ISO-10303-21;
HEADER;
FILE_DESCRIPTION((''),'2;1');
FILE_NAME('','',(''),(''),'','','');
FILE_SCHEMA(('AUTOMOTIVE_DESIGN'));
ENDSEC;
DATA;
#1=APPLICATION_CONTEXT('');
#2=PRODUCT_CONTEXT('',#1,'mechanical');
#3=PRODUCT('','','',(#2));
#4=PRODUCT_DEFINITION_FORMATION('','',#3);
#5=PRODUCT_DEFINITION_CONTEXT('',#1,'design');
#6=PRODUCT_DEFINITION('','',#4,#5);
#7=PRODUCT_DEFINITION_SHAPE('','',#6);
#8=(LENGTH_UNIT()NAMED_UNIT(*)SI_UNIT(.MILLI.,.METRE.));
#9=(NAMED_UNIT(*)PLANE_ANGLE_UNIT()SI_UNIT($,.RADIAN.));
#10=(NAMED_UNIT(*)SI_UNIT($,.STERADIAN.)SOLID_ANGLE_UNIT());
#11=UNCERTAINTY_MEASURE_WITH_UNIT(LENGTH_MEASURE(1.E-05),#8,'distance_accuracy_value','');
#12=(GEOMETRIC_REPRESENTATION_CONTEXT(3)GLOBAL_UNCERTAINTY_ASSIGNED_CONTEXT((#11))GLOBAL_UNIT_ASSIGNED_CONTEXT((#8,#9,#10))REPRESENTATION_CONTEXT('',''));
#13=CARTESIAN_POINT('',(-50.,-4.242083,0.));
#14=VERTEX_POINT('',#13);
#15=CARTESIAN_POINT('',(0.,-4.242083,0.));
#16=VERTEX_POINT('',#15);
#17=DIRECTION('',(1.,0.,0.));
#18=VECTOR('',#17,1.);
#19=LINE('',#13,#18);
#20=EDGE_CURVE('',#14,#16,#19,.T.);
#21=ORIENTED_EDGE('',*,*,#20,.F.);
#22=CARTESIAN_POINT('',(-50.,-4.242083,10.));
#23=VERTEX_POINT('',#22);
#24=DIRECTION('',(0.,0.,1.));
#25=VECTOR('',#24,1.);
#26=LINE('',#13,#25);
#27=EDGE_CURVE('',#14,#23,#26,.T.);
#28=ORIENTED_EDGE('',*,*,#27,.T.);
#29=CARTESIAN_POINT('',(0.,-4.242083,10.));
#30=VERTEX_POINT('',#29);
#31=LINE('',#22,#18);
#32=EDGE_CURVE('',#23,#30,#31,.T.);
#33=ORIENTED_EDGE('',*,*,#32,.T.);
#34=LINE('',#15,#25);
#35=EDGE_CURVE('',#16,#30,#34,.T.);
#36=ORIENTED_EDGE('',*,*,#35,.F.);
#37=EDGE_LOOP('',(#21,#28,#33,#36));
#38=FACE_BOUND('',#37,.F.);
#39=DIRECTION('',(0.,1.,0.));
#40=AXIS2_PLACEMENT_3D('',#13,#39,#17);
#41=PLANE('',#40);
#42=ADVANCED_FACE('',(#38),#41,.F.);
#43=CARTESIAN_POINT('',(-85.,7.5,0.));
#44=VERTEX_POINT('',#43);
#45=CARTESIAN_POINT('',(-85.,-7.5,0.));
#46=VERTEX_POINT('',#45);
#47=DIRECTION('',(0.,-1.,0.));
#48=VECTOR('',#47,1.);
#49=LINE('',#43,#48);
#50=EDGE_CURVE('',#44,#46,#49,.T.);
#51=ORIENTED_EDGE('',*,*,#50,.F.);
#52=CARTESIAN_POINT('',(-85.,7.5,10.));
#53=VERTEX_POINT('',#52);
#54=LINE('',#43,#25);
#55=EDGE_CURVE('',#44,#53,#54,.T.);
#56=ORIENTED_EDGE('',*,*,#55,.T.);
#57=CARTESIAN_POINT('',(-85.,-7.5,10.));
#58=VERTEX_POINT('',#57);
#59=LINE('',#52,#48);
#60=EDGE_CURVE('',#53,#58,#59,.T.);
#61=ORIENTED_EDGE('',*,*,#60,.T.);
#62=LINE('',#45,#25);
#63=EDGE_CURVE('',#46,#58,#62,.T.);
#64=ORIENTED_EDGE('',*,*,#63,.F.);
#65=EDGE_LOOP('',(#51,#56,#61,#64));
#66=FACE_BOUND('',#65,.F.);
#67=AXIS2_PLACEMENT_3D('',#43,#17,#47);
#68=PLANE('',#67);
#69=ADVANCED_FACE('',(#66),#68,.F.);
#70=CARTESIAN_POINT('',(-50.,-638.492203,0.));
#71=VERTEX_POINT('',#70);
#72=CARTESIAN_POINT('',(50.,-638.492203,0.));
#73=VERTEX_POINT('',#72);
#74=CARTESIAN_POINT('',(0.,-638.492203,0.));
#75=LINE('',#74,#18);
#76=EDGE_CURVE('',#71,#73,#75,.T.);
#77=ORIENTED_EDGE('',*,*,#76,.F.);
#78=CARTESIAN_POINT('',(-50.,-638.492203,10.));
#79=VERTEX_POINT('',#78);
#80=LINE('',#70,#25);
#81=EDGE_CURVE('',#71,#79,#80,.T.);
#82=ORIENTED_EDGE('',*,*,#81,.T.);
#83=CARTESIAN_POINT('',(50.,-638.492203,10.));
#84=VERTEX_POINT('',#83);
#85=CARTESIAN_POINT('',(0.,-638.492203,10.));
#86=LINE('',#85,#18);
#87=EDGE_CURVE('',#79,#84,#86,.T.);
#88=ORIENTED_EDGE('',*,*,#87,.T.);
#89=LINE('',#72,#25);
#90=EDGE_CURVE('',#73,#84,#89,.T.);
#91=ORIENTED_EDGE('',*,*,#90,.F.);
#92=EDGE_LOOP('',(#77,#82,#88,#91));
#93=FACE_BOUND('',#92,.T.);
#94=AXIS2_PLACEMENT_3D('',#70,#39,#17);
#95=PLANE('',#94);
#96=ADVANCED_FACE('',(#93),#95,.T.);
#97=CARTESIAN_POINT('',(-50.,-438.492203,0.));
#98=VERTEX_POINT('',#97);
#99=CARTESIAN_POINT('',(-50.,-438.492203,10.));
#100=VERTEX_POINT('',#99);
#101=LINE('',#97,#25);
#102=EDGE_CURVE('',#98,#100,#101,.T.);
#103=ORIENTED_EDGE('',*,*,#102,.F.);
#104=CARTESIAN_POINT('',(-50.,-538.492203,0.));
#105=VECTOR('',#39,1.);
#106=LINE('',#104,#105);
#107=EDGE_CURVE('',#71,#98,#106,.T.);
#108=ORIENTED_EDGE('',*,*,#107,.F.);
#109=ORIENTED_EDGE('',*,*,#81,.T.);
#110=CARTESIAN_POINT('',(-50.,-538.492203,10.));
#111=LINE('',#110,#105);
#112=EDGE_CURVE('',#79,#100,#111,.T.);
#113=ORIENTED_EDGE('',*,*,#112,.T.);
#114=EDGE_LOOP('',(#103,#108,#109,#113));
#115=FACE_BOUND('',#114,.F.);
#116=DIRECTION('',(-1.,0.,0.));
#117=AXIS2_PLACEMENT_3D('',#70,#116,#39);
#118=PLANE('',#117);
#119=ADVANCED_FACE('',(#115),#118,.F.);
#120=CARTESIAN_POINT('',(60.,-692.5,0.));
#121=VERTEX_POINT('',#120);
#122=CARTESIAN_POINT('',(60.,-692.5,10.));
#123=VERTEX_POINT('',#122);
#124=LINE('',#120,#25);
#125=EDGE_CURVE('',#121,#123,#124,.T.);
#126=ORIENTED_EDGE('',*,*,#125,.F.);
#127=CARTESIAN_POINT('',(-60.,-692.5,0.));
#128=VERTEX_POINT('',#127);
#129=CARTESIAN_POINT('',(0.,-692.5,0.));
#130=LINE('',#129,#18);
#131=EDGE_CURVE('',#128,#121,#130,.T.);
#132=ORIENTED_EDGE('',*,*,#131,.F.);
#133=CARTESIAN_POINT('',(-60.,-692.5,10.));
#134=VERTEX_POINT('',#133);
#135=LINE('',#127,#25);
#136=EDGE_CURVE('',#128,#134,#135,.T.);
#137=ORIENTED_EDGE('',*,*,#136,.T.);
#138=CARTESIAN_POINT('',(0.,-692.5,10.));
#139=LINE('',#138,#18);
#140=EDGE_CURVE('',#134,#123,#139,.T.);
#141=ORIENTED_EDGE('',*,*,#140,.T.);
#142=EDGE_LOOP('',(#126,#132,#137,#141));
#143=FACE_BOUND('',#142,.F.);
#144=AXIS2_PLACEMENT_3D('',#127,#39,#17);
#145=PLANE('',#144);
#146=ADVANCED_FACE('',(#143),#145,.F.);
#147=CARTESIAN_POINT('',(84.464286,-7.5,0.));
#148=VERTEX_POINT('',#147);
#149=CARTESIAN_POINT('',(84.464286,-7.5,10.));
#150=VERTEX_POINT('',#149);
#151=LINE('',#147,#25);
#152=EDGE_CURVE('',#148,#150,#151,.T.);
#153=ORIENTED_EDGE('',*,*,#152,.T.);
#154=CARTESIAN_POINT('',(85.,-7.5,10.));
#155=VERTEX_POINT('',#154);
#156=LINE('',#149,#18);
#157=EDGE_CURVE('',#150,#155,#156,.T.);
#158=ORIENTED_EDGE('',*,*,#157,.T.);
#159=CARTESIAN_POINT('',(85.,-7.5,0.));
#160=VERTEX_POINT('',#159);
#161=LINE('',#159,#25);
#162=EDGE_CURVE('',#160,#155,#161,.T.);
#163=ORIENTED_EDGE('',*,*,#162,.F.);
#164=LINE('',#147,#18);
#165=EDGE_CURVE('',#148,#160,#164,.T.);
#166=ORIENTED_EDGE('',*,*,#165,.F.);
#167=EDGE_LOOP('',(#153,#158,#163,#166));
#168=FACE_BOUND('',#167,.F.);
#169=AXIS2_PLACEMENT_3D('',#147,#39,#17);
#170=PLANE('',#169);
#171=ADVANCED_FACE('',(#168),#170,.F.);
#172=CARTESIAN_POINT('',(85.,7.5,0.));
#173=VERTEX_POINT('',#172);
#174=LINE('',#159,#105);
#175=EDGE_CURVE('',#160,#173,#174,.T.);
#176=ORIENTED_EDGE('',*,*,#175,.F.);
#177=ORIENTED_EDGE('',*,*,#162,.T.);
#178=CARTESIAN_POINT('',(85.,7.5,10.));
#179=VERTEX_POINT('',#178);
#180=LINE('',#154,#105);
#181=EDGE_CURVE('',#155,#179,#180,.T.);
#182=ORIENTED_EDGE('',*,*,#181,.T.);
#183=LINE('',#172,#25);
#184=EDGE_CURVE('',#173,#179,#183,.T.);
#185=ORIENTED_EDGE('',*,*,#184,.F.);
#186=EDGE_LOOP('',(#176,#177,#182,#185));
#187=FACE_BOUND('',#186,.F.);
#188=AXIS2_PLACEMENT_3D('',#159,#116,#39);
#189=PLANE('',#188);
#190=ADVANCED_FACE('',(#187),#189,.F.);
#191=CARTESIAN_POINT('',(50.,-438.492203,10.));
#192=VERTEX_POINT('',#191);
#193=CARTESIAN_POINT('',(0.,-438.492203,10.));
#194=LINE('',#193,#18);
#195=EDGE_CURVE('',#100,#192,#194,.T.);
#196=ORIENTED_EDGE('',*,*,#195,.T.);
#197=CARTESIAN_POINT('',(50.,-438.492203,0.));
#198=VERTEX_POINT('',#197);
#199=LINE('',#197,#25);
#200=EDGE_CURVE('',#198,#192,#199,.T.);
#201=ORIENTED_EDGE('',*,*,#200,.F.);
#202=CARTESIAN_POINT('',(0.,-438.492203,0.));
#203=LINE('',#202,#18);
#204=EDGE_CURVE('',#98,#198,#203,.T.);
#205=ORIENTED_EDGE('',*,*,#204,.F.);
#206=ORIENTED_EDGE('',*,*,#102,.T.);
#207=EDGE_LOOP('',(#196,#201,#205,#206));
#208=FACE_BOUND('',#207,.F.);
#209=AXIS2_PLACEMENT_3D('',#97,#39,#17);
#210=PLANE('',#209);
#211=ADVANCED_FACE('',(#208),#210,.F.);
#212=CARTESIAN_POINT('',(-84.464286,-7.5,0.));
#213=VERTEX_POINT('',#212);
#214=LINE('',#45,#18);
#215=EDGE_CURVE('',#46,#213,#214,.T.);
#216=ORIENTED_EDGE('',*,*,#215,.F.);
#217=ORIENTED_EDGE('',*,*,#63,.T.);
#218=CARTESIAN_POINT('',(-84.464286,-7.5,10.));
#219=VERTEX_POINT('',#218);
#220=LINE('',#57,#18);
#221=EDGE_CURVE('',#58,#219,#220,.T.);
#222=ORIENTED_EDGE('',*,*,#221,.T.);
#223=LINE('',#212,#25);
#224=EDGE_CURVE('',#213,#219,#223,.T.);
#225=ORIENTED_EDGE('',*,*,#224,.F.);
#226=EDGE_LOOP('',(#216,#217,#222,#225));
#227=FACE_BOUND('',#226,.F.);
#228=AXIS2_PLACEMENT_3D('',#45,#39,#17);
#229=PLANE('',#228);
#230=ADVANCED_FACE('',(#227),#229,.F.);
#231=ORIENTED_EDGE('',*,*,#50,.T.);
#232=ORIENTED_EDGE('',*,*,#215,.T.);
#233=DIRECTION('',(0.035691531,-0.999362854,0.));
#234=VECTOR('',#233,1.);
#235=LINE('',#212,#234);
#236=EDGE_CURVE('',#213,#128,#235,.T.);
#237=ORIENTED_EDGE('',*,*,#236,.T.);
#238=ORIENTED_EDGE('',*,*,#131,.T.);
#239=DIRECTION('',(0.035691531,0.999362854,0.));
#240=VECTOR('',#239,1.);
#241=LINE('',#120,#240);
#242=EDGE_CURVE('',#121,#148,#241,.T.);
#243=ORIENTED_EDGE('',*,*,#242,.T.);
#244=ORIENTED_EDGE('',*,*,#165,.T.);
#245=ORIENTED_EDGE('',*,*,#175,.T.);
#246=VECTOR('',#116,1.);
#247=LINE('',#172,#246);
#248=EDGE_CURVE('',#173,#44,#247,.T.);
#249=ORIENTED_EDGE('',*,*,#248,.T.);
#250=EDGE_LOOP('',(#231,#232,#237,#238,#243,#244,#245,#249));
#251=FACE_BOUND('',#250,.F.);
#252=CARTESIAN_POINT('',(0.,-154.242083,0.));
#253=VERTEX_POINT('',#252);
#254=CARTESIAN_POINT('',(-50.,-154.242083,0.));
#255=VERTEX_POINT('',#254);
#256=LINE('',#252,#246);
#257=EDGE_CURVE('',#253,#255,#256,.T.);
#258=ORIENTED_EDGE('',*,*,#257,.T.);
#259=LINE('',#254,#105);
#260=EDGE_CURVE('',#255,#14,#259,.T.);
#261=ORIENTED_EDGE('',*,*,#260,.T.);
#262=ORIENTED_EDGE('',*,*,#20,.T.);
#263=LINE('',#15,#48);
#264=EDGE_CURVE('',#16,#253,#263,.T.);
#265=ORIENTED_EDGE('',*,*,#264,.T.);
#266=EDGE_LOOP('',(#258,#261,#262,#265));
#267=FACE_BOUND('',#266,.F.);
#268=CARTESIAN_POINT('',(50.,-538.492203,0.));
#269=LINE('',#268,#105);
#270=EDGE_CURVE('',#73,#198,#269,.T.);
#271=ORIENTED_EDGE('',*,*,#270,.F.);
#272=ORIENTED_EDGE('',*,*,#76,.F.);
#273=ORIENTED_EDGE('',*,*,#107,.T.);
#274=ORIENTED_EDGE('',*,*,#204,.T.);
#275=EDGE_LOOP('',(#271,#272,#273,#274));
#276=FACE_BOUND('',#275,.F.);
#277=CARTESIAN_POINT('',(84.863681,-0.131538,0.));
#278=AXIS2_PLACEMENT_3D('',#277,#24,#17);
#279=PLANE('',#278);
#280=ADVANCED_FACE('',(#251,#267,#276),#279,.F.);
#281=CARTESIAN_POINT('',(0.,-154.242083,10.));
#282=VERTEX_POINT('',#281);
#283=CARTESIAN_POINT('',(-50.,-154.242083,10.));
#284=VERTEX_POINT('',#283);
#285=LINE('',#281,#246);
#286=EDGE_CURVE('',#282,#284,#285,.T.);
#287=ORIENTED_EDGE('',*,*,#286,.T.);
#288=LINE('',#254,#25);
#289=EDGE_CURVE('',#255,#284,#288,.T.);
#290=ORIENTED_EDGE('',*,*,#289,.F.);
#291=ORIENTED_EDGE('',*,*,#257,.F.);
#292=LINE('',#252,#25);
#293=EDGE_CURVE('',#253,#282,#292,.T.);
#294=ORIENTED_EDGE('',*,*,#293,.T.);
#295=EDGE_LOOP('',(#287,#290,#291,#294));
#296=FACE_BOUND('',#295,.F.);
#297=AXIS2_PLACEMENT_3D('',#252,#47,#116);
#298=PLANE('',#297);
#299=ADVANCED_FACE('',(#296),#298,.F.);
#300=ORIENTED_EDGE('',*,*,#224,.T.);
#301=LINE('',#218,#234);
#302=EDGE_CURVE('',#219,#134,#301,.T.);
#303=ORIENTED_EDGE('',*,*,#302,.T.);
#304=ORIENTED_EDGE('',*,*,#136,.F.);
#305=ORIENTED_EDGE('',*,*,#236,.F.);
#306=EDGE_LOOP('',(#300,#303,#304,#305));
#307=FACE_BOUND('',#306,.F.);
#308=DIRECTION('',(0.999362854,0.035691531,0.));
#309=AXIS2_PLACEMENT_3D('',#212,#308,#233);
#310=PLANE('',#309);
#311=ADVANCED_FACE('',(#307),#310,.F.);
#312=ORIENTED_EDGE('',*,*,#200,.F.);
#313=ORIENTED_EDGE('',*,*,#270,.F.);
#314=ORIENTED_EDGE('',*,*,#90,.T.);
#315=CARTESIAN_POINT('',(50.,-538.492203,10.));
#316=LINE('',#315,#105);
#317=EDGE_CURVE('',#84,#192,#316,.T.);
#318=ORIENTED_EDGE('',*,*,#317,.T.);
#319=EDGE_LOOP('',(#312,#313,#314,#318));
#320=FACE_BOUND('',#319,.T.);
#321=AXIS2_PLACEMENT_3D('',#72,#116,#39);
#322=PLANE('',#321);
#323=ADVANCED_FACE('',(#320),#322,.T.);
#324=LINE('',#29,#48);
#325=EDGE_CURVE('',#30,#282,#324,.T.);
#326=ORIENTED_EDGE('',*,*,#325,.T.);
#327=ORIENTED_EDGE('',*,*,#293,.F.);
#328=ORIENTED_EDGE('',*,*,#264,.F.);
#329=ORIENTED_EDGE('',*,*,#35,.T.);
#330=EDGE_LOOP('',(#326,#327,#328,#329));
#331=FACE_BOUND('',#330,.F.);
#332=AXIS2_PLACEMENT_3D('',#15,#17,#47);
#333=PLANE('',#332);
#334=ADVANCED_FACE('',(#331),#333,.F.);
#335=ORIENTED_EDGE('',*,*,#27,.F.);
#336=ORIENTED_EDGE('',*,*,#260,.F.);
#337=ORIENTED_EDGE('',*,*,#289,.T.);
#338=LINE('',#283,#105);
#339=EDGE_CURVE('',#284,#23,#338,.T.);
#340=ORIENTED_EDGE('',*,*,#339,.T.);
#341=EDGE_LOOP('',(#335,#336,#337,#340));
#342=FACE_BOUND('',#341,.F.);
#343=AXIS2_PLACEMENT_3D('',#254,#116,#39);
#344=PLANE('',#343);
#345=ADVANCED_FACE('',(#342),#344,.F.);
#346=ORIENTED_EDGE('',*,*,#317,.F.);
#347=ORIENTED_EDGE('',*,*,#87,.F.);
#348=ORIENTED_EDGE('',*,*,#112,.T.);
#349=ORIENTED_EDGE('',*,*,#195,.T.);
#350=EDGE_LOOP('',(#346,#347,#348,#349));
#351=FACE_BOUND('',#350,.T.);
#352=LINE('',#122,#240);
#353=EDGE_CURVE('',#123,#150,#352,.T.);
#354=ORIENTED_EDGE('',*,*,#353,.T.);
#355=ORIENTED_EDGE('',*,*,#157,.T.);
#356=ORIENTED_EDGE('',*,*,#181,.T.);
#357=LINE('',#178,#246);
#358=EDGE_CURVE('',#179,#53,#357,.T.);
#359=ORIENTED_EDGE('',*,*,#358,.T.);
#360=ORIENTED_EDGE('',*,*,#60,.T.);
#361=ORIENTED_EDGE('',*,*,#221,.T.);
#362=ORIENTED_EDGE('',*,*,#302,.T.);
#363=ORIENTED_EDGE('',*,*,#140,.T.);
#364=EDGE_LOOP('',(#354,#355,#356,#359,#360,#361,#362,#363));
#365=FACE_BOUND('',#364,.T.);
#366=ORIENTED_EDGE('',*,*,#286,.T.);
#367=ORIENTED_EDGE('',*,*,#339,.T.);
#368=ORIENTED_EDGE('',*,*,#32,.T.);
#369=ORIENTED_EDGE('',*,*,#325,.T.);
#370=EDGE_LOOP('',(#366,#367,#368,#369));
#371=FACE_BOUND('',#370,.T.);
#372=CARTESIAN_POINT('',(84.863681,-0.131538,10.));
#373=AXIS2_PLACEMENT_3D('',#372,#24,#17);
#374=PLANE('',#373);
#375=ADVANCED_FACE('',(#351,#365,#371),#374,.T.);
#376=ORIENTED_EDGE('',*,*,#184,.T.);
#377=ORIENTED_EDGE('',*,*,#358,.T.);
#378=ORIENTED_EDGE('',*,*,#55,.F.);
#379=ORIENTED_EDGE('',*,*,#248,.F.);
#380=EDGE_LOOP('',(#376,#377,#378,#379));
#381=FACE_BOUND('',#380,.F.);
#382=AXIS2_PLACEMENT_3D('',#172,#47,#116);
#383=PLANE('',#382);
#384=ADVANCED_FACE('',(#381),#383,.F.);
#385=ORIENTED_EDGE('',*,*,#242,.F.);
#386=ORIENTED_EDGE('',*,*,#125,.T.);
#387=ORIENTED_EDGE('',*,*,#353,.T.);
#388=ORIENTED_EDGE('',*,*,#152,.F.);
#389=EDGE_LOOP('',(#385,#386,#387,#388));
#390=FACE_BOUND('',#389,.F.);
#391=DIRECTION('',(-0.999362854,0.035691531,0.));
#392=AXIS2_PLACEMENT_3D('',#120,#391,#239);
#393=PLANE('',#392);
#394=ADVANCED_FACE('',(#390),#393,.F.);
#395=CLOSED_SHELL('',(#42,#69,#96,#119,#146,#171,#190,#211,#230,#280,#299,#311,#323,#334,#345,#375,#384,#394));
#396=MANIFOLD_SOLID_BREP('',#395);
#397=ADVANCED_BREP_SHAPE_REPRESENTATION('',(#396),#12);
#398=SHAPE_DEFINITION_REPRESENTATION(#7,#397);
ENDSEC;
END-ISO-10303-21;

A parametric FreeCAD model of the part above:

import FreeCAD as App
import Part
import Sketcher
Q = App.Units.Quantity

doc = App.newDocument("Part")
body = doc.addObject("PartDesign::Body", "Body")

sketch1 = doc.addObject("Sketcher::SketchObject", "Sketch")
body.addObject(sketch1)
sketch1.AttachmentSupport = (doc.XY_Plane, [""])
sketch1.MapMode = "FlatFace"
sketch1.addGeometry([
    Part.LineSegment(App.Vector(84.5, -7.5, 0), App.Vector(85, -7.5, 0)),
    Part.LineSegment(App.Vector(85, -7.5, 0), App.Vector(85, 7.5, 0)),
    Part.LineSegment(App.Vector(85, 7.5, 0), App.Vector(-85, 7.5, 0)),
    Part.LineSegment(App.Vector(-85, 7.5, 0), App.Vector(-85, -7.5, 0)),
    Part.LineSegment(App.Vector(-85, -7.5, 0), App.Vector(-84.5, -7.5, 0)),
    Part.LineSegment(App.Vector(-84.5, -7.5, 0), App.Vector(-60, -692.5, 0)),
    Part.LineSegment(App.Vector(-60, -692.5, 0), App.Vector(60, -692.5, 0)),
    Part.LineSegment(App.Vector(60, -692.5, 0), App.Vector(84.5, -7.5, 0)),
    Part.LineSegment(App.Vector(0, -4.2, 0), App.Vector(0, -154.2, 0)),
    Part.LineSegment(App.Vector(0, -154.2, 0), App.Vector(-50, -154.2, 0)),
    Part.LineSegment(App.Vector(-50, -154.2, 0), App.Vector(-50, -4.2, 0)),
    Part.LineSegment(App.Vector(-50, -4.2, 0), App.Vector(0, -4.2, 0)),
    Part.LineSegment(App.Vector(-50, -638.5, 0), App.Vector(-50, -438.5, 0)),
    Part.LineSegment(App.Vector(-50, -438.5, 0), App.Vector(50, -438.5, 0)),
    Part.LineSegment(App.Vector(50, -438.5, 0), App.Vector(50, -638.5, 0)),
    Part.LineSegment(App.Vector(50, -638.5, 0), App.Vector(-50, -638.5, 0)),
], False)
sketch1.addConstraint([
    Sketcher.Constraint("Coincident", 0, 2, 1, 1),
    Sketcher.Constraint("Coincident", 1, 2, 2, 1),
    Sketcher.Constraint("Coincident", 2, 2, 3, 1),
    Sketcher.Constraint("Coincident", 3, 2, 4, 1),
    Sketcher.Constraint("Coincident", 4, 2, 5, 1),
    Sketcher.Constraint("Coincident", 5, 2, 6, 1),
    Sketcher.Constraint("Coincident", 6, 2, 7, 1),
    Sketcher.Constraint("Coincident", 7, 2, 0, 1),
    Sketcher.Constraint("Coincident", 8, 2, 9, 1),
    Sketcher.Constraint("Coincident", 9, 2, 10, 1),
    Sketcher.Constraint("Coincident", 10, 2, 11, 1),
    Sketcher.Constraint("Coincident", 11, 2, 8, 1),
    Sketcher.Constraint("Coincident", 12, 2, 13, 1),
    Sketcher.Constraint("Coincident", 13, 2, 14, 1),
    Sketcher.Constraint("Coincident", 14, 2, 15, 1),
    Sketcher.Constraint("Coincident", 15, 2, 12, 1),
    Sketcher.Constraint("Horizontal", 0),
    Sketcher.Constraint("Vertical", 1),
    Sketcher.Constraint("Horizontal", 2),
    Sketcher.Constraint("Vertical", 3),
    Sketcher.Constraint("Horizontal", 4),
    Sketcher.Constraint("Horizontal", 6),
    Sketcher.Constraint("Vertical", 8),
    Sketcher.Constraint("Horizontal", 9),
    Sketcher.Constraint("Vertical", 10),
    Sketcher.Constraint("Horizontal", 11),
    Sketcher.Constraint("Vertical", 12),
    Sketcher.Constraint("Horizontal", 13),
    Sketcher.Constraint("Vertical", 14),
    Sketcher.Constraint("Horizontal", 15),
    Sketcher.Constraint("Symmetric", 0, 2, 2, 2, -1, 1),
    Sketcher.Constraint("Symmetric", 4, 2, 7, 2, -2),
    Sketcher.Constraint("PointOnObject", 8, 2, -2),
    Sketcher.Constraint("Vertical", 10, 2, 12, 2),
    Sketcher.Constraint("Equal", 5, 7),
    Sketcher.Constraint("DistanceX", 2, 2, 2, 1, Q("170 mm")),
    Sketcher.Constraint("DistanceX", 6, 1, 6, 2, Q("120 mm")),
    Sketcher.Constraint("DistanceX", 9, 2, 9, 1, Q("50 mm")),
    Sketcher.Constraint("DistanceX", 13, 1, 13, 2, Q("100 mm")),
    Sketcher.Constraint("DistanceY", 1, 1, 1, 2, Q("15 mm")),
    Sketcher.Constraint("DistanceY", 8, 2, 8, 1, Q("150 mm")),
    Sketcher.Constraint("DistanceY", 12, 1, 12, 2, Q("200 mm")),
    Sketcher.Constraint("DistanceY", 5, 2, 4, 2, Q("685 mm")),
    Sketcher.Constraint("DistanceX", 0, 1, 0, 2, Q("0.535714 mm")),
    Sketcher.Constraint("DistanceY", 12, 2, 9, 2, Q("284.25012 mm")),
    Sketcher.Constraint("DistanceY", 8, 2, -1, 1, Q("154.242083 mm")),
])
pad1 = doc.addObject("PartDesign::Pad", "Pad")
body.addObject(pad1)
pad1.Profile = sketch1
pad1.Length = 10

doc.recompute()
